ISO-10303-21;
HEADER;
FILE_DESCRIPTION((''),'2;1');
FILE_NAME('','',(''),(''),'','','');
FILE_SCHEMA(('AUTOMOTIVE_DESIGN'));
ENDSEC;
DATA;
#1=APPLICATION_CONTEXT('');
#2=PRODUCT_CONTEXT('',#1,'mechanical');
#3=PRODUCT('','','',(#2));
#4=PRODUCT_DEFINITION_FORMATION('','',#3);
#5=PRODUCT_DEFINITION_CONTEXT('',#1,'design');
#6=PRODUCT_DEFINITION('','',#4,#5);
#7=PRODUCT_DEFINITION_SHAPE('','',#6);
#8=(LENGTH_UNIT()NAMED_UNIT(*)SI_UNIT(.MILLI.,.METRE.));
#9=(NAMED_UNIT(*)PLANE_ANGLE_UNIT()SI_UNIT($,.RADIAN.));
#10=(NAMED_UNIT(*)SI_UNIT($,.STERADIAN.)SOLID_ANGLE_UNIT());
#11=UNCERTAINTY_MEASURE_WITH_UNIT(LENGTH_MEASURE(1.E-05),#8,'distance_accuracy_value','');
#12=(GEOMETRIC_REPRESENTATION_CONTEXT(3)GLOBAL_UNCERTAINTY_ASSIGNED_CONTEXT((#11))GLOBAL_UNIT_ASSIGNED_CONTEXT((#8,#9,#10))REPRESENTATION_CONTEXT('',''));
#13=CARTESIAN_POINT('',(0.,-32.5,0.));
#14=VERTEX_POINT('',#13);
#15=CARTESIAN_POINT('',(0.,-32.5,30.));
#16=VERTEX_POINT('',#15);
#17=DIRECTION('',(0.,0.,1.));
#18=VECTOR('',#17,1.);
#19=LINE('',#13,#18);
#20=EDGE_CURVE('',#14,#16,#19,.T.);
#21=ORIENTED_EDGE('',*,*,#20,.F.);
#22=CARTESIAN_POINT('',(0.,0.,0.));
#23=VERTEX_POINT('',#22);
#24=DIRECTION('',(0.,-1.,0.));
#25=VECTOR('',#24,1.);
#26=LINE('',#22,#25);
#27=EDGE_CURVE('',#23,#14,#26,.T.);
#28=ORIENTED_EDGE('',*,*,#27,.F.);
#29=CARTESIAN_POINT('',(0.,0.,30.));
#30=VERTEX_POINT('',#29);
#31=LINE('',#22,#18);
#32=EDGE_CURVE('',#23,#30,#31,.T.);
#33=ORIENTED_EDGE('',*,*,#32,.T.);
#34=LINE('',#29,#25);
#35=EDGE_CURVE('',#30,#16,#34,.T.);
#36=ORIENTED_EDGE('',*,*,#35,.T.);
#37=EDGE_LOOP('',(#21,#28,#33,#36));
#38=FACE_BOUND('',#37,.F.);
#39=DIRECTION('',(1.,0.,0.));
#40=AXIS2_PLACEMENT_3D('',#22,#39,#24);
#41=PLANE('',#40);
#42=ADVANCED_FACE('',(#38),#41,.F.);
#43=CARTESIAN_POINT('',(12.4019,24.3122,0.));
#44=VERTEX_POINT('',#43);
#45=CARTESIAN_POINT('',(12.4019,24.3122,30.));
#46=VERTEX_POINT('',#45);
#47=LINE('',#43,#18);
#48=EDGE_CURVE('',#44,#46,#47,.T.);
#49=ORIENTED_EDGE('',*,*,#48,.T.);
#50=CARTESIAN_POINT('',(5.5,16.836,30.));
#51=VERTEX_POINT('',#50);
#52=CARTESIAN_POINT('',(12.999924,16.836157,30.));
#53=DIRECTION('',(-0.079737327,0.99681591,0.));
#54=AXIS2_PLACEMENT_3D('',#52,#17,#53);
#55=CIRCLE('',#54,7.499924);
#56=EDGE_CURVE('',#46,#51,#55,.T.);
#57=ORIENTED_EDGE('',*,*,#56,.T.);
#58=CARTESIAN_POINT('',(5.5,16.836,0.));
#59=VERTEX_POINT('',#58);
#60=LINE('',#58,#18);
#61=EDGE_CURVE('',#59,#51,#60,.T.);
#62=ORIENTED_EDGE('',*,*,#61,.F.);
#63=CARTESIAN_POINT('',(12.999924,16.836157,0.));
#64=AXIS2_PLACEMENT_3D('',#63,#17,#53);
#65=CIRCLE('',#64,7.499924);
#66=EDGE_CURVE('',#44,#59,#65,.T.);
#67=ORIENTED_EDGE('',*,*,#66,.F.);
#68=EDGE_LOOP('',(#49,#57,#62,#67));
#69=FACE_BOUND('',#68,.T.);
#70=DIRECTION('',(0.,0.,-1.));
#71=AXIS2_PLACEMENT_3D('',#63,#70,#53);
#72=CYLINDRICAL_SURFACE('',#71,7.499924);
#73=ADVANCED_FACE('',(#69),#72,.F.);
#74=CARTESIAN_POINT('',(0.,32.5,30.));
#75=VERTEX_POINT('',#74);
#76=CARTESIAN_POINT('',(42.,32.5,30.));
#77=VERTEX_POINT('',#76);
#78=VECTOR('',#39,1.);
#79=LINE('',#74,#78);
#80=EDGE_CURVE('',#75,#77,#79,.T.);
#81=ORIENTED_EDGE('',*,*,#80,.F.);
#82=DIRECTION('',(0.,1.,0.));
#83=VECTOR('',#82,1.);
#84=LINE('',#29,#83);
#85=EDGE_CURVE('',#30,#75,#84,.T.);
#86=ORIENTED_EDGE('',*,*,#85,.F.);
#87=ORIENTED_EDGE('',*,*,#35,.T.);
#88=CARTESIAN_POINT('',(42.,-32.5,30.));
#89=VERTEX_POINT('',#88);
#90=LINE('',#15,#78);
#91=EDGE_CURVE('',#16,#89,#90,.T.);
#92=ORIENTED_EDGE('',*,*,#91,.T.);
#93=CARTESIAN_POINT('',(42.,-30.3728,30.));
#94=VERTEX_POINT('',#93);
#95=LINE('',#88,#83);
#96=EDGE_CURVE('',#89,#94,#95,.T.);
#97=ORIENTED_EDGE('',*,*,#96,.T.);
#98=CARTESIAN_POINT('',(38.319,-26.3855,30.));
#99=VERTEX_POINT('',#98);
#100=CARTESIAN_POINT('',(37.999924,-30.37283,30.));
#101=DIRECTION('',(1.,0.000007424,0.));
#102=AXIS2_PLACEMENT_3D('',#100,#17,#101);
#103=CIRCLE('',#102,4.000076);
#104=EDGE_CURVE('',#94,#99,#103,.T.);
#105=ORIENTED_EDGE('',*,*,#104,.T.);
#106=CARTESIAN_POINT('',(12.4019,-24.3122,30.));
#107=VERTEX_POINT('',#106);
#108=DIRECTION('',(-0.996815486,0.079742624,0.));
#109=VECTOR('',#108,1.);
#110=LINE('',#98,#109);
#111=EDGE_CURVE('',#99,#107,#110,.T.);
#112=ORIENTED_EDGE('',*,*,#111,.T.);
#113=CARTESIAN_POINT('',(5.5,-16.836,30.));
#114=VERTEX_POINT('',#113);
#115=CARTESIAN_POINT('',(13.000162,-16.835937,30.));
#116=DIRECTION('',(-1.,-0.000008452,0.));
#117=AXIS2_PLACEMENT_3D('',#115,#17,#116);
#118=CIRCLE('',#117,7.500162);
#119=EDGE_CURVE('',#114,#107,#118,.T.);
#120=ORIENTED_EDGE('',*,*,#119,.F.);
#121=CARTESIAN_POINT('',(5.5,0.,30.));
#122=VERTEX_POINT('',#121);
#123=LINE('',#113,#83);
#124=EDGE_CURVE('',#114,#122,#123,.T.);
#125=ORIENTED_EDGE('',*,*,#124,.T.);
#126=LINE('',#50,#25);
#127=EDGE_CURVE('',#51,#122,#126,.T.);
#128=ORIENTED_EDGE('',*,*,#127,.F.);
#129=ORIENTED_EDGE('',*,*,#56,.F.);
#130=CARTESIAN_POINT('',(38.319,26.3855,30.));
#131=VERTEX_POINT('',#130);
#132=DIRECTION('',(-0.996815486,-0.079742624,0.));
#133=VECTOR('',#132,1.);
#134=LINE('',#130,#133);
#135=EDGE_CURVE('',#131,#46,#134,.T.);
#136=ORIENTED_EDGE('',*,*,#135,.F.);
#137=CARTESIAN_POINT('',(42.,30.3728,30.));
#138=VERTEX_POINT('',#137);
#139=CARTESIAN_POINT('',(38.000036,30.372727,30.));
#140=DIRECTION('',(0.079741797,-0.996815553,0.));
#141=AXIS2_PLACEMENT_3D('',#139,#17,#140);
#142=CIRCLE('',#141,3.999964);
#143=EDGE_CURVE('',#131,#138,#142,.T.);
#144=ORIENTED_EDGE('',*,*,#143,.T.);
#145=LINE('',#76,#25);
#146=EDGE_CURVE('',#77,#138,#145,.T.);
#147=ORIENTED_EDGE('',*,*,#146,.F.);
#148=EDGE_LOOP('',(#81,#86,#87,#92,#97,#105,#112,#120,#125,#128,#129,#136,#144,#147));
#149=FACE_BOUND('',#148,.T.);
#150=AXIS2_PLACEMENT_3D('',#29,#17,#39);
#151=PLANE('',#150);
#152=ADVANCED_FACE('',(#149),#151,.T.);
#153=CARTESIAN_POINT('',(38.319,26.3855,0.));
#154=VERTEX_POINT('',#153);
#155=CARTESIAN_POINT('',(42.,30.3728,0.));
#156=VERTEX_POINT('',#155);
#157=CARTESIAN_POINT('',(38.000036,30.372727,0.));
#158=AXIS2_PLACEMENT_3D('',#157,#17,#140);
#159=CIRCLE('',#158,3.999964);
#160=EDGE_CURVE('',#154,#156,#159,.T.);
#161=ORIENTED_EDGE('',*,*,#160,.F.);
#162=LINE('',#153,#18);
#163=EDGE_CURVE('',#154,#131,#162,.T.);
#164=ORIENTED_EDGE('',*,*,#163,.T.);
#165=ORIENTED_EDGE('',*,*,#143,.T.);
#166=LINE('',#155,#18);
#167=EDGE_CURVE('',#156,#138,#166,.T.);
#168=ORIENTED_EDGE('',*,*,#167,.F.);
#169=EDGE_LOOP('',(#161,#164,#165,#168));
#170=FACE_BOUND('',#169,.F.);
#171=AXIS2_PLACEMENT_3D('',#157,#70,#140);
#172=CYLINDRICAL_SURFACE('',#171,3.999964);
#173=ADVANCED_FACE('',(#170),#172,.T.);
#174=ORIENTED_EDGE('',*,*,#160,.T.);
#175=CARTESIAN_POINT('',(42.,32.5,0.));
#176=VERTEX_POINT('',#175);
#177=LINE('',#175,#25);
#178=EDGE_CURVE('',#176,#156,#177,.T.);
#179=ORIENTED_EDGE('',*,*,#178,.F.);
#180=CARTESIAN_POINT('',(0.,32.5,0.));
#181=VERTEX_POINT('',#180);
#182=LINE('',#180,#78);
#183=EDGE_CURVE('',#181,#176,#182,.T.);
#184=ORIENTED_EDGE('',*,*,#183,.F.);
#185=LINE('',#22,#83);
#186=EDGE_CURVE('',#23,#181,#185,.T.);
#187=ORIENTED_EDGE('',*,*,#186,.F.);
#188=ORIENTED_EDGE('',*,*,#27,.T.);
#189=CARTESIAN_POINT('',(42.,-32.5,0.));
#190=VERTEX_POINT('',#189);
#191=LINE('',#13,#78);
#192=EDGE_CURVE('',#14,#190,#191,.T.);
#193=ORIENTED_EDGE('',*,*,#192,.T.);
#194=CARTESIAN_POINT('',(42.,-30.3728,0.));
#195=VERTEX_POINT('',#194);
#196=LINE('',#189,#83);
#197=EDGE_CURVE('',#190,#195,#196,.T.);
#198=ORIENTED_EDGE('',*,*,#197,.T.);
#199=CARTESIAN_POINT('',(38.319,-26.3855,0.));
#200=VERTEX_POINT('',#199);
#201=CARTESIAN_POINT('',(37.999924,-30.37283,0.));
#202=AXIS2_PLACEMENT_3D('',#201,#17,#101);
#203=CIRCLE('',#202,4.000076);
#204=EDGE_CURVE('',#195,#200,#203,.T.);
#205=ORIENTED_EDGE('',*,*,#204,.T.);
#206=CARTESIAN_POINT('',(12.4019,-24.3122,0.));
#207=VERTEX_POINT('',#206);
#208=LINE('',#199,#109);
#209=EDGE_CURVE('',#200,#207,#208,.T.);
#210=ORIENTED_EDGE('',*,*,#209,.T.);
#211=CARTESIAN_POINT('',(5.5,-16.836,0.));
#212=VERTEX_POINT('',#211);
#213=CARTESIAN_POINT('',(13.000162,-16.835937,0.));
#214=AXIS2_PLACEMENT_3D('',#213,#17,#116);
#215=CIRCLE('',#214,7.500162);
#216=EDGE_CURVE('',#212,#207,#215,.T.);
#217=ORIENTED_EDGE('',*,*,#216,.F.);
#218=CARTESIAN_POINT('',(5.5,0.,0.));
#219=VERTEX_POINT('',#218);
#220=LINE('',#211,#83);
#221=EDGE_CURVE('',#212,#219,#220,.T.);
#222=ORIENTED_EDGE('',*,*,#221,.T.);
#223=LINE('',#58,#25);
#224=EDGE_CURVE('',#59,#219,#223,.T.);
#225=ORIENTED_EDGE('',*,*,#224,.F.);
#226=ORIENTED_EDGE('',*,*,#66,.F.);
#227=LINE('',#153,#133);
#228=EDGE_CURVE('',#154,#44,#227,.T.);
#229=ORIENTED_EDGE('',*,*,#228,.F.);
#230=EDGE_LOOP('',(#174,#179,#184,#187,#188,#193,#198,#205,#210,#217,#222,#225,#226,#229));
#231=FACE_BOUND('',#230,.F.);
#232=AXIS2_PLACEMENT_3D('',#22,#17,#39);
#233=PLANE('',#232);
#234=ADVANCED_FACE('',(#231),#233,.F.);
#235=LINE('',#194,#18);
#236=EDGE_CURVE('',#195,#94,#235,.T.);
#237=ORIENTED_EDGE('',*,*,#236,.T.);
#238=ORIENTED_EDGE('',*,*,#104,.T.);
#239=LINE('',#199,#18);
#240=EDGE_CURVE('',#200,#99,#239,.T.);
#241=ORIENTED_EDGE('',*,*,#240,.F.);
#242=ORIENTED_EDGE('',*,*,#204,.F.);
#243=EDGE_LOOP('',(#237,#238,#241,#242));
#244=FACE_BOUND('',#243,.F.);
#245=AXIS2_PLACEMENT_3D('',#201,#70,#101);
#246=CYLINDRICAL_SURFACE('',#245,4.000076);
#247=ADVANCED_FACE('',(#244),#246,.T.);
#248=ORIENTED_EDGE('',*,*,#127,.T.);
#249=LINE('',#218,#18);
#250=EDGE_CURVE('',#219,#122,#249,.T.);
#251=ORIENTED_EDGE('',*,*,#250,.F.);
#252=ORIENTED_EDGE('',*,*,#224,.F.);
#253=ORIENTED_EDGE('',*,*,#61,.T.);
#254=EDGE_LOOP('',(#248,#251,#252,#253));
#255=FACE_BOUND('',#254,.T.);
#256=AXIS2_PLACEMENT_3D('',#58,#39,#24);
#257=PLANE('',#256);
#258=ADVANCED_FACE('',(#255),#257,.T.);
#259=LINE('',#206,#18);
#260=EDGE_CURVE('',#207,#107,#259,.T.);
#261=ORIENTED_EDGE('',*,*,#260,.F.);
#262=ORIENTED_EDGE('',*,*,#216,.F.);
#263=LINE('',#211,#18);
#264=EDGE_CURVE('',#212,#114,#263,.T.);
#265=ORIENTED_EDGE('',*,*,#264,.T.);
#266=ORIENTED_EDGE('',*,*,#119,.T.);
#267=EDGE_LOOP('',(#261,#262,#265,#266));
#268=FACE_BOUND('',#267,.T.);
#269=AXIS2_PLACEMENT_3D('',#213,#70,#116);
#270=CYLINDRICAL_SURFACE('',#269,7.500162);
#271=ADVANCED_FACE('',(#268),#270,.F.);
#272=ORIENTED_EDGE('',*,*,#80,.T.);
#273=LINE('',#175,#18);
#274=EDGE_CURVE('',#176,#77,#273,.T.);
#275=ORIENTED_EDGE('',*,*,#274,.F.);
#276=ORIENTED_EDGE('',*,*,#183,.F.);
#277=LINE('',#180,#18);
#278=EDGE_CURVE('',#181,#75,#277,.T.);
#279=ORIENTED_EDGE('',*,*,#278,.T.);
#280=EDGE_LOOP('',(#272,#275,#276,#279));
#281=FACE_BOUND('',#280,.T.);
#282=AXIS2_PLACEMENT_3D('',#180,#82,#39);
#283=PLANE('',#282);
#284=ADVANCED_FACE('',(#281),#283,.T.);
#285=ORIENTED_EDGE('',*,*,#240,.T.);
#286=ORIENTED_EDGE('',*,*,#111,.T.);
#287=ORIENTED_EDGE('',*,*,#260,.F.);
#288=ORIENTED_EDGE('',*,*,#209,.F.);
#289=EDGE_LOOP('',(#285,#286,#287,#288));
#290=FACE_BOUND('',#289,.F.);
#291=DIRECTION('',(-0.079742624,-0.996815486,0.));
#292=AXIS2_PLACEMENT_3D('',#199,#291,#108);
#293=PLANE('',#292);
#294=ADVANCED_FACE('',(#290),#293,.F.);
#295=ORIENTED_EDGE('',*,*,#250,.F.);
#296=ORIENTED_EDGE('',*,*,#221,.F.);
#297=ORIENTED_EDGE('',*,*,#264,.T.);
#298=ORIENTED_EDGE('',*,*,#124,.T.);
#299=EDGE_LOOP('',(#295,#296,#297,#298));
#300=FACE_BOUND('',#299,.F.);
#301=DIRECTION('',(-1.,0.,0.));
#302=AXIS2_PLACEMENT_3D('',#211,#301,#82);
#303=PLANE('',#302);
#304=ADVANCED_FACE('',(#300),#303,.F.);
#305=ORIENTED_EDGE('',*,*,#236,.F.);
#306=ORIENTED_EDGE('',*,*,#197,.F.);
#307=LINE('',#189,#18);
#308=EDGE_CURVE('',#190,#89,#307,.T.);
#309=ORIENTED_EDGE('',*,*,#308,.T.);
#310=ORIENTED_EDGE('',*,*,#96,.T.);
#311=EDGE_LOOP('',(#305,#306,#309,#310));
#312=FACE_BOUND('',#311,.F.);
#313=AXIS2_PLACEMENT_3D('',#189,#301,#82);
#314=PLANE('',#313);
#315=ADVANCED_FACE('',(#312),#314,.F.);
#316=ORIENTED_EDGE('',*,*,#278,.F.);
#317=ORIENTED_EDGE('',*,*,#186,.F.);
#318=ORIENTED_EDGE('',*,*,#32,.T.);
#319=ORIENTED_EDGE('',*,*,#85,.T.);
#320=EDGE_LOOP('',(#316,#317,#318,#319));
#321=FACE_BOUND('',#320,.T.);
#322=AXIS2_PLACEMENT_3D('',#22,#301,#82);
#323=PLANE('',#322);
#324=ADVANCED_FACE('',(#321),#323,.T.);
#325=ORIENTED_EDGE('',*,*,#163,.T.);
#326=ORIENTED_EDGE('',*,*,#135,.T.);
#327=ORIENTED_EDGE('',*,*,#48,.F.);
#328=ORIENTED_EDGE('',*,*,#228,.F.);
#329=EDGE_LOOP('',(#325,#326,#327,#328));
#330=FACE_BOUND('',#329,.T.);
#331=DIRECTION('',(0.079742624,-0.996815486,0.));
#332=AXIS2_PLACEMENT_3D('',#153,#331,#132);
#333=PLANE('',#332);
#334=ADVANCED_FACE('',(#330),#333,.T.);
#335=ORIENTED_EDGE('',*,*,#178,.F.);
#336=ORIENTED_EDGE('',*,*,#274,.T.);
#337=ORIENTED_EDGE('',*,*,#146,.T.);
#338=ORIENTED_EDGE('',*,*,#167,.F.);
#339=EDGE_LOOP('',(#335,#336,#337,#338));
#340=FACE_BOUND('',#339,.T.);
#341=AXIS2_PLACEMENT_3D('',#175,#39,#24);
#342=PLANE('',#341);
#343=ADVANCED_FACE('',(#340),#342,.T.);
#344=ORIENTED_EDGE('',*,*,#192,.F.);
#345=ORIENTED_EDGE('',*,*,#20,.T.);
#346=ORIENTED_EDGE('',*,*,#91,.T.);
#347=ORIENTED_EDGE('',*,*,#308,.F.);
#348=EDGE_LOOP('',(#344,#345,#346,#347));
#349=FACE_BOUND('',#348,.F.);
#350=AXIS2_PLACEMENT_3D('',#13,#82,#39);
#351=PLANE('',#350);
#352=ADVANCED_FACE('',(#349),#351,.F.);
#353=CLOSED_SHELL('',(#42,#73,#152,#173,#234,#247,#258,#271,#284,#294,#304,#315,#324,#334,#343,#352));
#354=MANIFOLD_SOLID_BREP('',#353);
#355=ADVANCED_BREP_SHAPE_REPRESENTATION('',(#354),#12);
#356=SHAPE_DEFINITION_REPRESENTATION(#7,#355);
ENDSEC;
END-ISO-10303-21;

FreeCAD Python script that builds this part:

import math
import FreeCAD as App
import Part
import Sketcher

V = App.Vector

doc = App.newDocument("Part")
body = doc.addObject("PartDesign::Body", "Body")

sketch1 = doc.addObject("Sketcher::SketchObject", "Sketch")
body.addObject(sketch1)
sketch1.AttachmentSupport = (doc.XY_Plane, [""])
sketch1.MapMode = "FlatFace"
sketch1.addGeometry(Part.LineSegment(V(0, 32.5, 0), V(0, -32.5, 0)), False)
sketch1.addGeometry(Part.LineSegment(V(0, -32.5, 0), V(42, -32.5, 0)), False)
sketch1.addGeometry(Part.LineSegment(V(42, -32.5, 0), V(42, -30.3728, 0)), False)
sketch1.addGeometry(Part.ArcOfCircle(Part.Circle(V(38, -30.3728, 0), V(0, 0, 1), 4), math.radians(0), math.radians(85.42585)), False)
sketch1.addGeometry(Part.LineSegment(V(38.319, -26.3855, 0), V(12.4019, -24.3122, 0)), False)
sketch1.addGeometry(Part.ArcOfCircle(Part.Circle(V(13, -16.836, 0), V(0, 0, 1), 7.5), math.radians(180), math.radians(265.426048)), False)
sketch1.addGeometry(Part.LineSegment(V(5.5, -16.836, 0), V(5.5, 16.836, 0)), False)
sketch1.addGeometry(Part.ArcOfCircle(Part.Circle(V(13, 16.836, 0), V(0, 0, 1), 7.500086), math.radians(94.573952), math.radians(180)), False)
sketch1.addGeometry(Part.LineSegment(V(12.4019, 24.3122, 0), V(38.319, 26.3855, 0)), False)
sketch1.addGeometry(Part.ArcOfCircle(Part.Circle(V(38, 30.3728, 0), V(0, 0, 1), 4.00004), math.radians(-85.42585), math.radians(0)), False)
sketch1.addGeometry(Part.LineSegment(V(42, 30.3728, 0), V(42, 32.5, 0)), False)
sketch1.addGeometry(Part.LineSegment(V(42, 32.5, 0), V(0, 32.5, 0)), False)
sketch1.addConstraint(Sketcher.Constraint("Coincident", 0, 2, 1, 1))
sketch1.addConstraint(Sketcher.Constraint("Coincident", 1, 2, 2, 1))
sketch1.addConstraint(Sketcher.Constraint("Tangent", 2, 2, 3, 1))
sketch1.addConstraint(Sketcher.Constraint("Tangent", 3, 2, 4, 1))
sketch1.addConstraint(Sketcher.Constraint("Tangent", 4, 2, 5, 2))
sketch1.addConstraint(Sketcher.Constraint("Tangent", 5, 1, 6, 1))
sketch1.addConstraint(Sketcher.Constraint("Tangent", 6, 2, 7, 2))
sketch1.addConstraint(Sketcher.Constraint("Tangent", 7, 1, 8, 1))
sketch1.addConstraint(Sketcher.Constraint("Tangent", 8, 2, 9, 1))
sketch1.addConstraint(Sketcher.Constraint("Tangent", 9, 2, 10, 1))
sketch1.addConstraint(Sketcher.Constraint("Coincident", 10, 2, 11, 1))
sketch1.addConstraint(Sketcher.Constraint("Coincident", 11, 2, 0, 1))
sketch1.addConstraint(Sketcher.Constraint("Vertical", 0))
sketch1.addConstraint(Sketcher.Constraint("Horizontal", 1))
sketch1.addConstraint(Sketcher.Constraint("Vertical", 2))
sketch1.addConstraint(Sketcher.Constraint("Vertical", 6))
sketch1.addConstraint(Sketcher.Constraint("Vertical", 10))
sketch1.addConstraint(Sketcher.Constraint("Horizontal", 11))
sketch1.addConstraint(Sketcher.Constraint("Equal", 5, 7))
sketch1.addConstraint(Sketcher.Constraint("Equal", 3, 9))
sketch1.addConstraint(Sketcher.Constraint("Symmetric", 0, 2, 11, 2, -1, 1))
sketch1.addConstraint(Sketcher.Constraint("Symmetric", 3, 3, 9, 3, -1))
sketch1.addConstraint(Sketcher.Constraint("Vertical", 4, 2, 7, 1))
sketch1.addConstraint(Sketcher.Constraint("Radius", 3, 4.0))
sketch1.addConstraint(Sketcher.Constraint("Radius", 5, 7.5))
sketch1.addConstraint(Sketcher.Constraint("DistanceX", 1, 1, 1, 2, 42.0))
sketch1.addConstraint(Sketcher.Constraint("DistanceY", 0, 2, -1, 1, 32.5))
sketch1.addConstraint(Sketcher.Constraint("DistanceX", -1, 1, 5, 1, 5.5))
sketch1.addConstraint(Sketcher.Constraint("Distance", 4, 26.0))
sketch1.addConstraint(Sketcher.Constraint("DistanceY", 6, 1, 6, 2, 33.672))
pad1 = doc.addObject("PartDesign::Pad", "Pad")
body.addObject(pad1)
pad1.Profile = sketch1
pad1.Length = 30

doc.recompute()
